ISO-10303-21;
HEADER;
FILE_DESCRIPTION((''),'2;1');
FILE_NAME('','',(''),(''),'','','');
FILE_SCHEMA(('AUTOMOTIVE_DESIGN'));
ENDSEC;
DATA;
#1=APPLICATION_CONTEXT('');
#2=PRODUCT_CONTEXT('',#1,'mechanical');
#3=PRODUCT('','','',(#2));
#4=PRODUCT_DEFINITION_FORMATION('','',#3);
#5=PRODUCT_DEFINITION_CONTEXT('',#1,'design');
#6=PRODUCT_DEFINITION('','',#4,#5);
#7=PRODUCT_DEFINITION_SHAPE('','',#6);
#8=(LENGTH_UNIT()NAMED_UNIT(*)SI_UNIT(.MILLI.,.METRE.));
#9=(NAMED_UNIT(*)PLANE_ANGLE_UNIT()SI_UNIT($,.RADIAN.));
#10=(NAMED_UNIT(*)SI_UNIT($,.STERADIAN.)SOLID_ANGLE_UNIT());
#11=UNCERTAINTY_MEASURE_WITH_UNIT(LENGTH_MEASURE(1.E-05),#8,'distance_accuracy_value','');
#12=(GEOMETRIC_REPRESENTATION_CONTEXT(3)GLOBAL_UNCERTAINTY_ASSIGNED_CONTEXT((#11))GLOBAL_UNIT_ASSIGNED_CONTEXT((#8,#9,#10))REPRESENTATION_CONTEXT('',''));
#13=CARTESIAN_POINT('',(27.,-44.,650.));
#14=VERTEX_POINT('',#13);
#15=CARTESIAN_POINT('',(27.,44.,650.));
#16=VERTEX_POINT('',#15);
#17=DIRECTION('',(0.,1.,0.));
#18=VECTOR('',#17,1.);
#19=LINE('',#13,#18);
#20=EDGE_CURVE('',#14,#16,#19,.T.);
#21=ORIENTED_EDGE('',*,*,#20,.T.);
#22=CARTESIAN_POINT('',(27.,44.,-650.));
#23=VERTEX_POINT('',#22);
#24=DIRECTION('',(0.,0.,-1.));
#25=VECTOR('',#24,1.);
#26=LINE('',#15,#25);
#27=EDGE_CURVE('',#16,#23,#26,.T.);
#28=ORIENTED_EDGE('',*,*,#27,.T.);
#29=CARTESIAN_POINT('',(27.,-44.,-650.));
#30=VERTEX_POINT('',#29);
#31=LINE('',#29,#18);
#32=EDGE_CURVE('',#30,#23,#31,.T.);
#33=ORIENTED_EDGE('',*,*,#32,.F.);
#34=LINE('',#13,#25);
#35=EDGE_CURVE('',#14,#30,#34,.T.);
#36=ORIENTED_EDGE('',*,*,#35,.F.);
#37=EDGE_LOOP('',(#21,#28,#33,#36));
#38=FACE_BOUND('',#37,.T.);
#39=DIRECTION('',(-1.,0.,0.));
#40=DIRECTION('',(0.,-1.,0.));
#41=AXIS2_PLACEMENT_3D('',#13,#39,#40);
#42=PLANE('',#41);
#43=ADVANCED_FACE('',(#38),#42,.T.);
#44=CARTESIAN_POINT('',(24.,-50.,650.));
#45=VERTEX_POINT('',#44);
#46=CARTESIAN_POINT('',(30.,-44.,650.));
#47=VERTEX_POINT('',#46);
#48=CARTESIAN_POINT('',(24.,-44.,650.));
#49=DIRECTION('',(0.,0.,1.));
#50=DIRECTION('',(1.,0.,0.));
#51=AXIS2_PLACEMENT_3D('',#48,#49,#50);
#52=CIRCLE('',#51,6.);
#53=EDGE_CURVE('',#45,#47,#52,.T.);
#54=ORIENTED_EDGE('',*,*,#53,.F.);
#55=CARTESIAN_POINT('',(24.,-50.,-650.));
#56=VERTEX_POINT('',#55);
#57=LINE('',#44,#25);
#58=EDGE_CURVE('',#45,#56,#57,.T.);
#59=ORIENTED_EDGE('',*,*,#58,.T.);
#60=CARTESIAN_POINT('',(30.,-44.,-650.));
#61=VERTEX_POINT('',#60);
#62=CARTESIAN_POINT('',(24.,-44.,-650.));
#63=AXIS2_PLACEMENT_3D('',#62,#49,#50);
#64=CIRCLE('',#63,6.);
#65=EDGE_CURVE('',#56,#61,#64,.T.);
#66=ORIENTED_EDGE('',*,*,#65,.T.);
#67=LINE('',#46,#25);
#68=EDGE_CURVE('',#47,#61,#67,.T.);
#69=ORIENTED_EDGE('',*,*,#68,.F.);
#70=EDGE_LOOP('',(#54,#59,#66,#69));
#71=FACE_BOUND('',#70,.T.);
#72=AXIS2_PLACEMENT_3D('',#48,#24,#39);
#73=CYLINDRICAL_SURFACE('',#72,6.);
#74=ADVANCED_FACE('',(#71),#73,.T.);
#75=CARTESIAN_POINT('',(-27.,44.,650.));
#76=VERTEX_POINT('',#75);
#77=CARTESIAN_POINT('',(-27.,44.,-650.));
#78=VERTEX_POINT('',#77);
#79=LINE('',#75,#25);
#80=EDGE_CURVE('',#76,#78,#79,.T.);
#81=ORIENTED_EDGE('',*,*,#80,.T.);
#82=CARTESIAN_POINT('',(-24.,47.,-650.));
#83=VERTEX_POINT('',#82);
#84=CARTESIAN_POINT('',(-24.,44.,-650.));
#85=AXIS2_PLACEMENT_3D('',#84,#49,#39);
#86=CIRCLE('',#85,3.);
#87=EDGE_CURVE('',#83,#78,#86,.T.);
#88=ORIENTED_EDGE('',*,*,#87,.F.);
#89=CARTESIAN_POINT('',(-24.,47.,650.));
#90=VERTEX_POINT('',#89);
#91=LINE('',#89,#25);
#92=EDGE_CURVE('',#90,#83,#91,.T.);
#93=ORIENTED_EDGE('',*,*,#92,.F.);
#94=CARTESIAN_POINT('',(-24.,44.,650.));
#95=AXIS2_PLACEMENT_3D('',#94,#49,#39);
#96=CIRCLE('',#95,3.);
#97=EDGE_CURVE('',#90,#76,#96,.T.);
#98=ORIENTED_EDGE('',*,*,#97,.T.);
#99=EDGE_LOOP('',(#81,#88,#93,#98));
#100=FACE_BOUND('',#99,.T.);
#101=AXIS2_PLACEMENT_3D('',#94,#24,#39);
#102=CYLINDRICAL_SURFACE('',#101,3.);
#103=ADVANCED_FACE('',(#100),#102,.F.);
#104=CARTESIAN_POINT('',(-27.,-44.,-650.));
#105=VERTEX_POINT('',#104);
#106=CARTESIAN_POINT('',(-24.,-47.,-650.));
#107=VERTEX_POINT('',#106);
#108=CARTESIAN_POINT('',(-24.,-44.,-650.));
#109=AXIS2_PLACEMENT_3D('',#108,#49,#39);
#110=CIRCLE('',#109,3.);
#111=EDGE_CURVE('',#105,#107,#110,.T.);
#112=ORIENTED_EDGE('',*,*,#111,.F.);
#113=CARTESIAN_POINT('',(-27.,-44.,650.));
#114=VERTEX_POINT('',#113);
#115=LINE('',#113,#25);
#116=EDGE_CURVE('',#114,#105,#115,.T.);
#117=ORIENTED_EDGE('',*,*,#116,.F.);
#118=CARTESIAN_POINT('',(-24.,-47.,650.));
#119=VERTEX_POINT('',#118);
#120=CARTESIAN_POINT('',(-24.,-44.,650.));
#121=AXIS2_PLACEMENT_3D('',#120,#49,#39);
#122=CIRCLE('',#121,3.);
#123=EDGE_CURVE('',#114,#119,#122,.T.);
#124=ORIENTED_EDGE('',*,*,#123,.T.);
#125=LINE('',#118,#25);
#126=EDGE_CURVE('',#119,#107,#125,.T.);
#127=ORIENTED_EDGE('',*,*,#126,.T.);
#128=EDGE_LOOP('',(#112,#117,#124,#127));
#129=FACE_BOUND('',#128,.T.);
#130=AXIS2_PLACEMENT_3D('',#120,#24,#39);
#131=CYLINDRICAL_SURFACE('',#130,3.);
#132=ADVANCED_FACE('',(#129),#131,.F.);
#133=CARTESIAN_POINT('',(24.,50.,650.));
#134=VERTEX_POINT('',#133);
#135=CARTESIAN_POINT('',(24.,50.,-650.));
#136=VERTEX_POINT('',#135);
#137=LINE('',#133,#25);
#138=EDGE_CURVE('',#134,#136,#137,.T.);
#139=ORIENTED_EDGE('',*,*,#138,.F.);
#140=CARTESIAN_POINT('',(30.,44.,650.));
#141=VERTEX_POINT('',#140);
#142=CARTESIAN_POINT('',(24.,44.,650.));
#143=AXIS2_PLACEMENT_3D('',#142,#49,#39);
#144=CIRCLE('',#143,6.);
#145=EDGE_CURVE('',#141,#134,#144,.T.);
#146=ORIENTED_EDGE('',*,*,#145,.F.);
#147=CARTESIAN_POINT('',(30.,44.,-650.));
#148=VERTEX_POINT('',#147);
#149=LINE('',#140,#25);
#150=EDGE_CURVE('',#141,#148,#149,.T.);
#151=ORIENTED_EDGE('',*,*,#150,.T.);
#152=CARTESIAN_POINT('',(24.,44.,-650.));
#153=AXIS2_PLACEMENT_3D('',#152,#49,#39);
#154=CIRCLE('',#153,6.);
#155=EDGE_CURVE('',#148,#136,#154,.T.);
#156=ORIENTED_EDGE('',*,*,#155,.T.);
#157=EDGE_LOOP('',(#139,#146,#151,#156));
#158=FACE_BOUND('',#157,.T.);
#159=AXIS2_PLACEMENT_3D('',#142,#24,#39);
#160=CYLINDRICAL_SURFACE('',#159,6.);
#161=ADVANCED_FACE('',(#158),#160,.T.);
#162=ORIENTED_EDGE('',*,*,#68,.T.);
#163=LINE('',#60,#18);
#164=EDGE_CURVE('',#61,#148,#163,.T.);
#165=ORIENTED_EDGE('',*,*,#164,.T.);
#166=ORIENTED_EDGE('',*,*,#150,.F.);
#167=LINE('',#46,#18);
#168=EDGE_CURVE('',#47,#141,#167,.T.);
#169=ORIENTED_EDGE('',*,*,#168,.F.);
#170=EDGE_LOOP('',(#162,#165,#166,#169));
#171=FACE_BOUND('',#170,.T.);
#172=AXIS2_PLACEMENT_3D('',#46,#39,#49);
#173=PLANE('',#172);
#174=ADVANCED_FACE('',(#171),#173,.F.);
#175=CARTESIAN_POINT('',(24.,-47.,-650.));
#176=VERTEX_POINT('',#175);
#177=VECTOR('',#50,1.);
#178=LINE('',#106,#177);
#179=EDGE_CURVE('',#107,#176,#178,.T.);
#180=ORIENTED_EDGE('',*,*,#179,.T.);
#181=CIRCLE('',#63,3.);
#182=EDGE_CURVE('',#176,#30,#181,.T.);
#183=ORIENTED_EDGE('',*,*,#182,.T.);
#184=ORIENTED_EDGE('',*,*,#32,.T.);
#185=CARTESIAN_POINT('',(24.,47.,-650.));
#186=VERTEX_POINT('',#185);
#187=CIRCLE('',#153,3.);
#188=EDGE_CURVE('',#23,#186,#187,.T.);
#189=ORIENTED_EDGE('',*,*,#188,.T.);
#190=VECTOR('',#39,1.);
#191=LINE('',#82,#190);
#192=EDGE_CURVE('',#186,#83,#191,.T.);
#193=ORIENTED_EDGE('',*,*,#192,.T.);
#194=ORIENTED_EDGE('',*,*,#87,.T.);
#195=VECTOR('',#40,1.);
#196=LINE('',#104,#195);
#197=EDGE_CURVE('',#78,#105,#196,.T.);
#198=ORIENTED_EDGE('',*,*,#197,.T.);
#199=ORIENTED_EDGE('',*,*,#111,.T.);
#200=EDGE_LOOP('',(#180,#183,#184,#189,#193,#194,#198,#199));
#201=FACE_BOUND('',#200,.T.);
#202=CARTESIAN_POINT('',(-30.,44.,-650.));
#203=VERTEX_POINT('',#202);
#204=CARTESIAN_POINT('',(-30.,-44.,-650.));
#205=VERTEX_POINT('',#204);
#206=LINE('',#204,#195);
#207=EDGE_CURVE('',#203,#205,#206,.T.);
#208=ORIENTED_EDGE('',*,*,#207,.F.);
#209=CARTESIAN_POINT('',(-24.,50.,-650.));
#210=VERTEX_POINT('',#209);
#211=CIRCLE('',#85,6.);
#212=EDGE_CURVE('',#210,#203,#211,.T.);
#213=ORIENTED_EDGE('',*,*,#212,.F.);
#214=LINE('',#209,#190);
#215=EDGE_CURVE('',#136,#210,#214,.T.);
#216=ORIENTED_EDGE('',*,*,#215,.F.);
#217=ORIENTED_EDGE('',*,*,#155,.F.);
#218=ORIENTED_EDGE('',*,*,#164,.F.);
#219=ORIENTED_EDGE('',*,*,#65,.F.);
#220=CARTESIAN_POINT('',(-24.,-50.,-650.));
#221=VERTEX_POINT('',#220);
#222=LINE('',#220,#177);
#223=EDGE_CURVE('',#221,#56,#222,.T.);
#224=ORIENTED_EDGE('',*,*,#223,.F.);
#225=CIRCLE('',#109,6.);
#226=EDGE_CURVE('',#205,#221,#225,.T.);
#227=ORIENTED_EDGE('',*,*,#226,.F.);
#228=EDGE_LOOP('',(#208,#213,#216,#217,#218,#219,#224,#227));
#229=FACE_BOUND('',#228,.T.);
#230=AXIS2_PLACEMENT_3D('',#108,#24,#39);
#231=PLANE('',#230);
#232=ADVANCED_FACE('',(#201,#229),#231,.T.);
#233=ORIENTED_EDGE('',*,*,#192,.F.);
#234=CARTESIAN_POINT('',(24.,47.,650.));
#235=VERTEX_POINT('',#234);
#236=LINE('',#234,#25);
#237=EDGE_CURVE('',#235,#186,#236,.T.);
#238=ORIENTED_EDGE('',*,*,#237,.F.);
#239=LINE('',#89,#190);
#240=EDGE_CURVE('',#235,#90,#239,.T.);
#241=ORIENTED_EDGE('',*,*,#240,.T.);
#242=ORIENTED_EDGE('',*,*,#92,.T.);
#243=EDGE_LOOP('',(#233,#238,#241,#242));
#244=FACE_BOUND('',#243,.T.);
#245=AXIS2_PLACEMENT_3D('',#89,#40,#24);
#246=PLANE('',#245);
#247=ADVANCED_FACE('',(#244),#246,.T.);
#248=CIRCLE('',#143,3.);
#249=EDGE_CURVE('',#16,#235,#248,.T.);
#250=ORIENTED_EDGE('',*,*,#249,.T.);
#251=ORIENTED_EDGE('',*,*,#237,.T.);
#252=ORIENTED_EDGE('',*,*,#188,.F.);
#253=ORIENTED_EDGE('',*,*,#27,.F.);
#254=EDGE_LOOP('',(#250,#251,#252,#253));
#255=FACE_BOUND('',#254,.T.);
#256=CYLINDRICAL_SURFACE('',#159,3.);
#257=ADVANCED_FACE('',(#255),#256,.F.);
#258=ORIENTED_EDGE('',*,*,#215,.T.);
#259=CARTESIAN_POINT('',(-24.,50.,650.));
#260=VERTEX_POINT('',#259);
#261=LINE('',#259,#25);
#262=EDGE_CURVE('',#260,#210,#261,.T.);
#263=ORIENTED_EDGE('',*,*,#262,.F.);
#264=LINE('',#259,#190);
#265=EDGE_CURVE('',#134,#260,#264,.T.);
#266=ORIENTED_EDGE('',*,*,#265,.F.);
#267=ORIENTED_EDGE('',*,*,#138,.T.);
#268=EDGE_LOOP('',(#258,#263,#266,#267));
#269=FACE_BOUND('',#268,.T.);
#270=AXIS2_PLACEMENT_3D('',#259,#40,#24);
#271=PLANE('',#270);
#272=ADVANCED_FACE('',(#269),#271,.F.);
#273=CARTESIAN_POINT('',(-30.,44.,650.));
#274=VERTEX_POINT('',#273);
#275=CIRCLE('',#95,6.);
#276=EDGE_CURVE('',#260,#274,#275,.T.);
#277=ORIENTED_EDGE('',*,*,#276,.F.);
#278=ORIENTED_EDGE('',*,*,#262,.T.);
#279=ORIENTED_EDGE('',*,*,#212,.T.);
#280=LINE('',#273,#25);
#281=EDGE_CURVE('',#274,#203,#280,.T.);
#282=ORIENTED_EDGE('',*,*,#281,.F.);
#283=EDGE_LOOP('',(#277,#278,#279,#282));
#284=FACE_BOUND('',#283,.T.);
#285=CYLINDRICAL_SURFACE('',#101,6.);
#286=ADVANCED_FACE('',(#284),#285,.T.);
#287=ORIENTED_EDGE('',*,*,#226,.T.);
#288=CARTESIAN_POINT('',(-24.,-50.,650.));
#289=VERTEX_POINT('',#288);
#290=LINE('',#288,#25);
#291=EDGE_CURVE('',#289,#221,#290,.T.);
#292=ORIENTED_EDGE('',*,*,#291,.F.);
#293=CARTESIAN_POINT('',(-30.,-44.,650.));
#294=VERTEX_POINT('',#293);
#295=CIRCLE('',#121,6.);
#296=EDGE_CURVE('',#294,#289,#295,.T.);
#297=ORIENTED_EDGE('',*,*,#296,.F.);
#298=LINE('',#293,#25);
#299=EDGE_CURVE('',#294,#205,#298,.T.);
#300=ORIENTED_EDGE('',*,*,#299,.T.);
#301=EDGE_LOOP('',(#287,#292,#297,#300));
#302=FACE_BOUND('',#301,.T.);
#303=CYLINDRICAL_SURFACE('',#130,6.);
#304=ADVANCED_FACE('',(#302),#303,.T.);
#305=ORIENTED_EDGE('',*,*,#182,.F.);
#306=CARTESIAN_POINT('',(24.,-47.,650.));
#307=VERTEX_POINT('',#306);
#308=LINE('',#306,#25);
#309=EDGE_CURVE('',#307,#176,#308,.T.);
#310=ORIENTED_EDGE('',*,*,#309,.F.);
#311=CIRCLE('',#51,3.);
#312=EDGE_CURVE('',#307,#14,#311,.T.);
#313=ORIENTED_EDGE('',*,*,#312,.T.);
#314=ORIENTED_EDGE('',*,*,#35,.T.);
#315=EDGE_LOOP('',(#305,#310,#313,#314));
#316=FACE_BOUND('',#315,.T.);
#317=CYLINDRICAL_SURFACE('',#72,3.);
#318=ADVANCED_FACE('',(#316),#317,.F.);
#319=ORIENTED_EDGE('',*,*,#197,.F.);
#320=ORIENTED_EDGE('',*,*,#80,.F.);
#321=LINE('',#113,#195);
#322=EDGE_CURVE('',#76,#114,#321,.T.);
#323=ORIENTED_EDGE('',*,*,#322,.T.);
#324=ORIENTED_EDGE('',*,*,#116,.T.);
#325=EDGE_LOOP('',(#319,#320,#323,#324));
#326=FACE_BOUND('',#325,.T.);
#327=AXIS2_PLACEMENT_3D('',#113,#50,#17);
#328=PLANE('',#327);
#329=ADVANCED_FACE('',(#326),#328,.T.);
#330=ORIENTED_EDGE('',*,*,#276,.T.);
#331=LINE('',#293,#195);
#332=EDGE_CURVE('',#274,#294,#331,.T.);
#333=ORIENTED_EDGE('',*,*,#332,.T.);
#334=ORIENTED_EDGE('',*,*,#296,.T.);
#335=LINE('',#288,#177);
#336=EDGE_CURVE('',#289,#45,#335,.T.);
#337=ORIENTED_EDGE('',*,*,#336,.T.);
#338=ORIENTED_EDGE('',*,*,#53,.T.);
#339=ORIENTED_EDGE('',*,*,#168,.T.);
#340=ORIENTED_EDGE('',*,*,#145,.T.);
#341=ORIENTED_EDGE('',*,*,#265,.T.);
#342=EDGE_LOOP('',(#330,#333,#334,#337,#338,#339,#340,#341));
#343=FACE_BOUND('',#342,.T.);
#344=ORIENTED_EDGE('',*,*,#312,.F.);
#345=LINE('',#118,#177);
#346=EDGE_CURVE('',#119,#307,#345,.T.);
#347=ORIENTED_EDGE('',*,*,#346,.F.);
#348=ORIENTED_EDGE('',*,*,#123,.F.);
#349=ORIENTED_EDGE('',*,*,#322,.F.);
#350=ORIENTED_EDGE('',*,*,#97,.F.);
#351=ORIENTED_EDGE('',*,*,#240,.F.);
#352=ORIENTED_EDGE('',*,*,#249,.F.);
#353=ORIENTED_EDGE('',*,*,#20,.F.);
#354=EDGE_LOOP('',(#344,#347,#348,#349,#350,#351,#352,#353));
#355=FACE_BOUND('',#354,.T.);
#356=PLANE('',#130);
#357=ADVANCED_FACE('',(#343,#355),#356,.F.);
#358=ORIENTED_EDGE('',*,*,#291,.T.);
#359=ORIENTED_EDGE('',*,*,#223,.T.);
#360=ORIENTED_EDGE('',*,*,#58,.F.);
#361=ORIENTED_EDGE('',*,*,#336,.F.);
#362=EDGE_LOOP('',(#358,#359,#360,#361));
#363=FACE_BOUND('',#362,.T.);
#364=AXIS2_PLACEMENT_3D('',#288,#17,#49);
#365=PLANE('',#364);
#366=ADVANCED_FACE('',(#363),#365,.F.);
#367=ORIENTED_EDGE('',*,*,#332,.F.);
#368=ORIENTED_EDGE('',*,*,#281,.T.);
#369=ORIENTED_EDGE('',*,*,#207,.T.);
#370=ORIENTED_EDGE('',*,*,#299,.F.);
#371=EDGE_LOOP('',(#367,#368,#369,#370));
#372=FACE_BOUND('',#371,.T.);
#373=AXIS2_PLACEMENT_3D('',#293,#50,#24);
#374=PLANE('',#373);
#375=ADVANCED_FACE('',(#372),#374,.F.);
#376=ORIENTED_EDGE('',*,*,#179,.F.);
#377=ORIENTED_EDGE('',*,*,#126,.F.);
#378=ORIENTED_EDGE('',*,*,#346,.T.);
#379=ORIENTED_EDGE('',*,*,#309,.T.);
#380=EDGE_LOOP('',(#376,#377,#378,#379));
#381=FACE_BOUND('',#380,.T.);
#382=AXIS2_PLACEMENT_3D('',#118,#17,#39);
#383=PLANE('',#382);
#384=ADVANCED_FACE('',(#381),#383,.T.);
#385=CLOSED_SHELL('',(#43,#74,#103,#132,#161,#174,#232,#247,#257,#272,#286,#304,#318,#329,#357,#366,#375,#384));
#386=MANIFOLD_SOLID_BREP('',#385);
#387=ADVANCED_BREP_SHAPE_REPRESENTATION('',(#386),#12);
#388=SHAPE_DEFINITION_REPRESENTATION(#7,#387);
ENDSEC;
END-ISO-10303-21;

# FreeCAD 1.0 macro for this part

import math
import FreeCAD as App
import Part
import Sketcher
Q = App.Units.Quantity

doc = App.newDocument("Part")
body = doc.addObject("PartDesign::Body", "Body")

# Sketch on XY plane
sketch1 = doc.addObject("Sketcher::SketchObject", "Sketch")
body.addObject(sketch1)
sketch1.AttachmentSupport = (doc.XY_Plane, [""])
sketch1.MapMode = "FlatFace"
sketch1.addGeometry([
    Part.LineSegment(App.Vector(-24, -50, 0), App.Vector(24, -50, 0)),  # 0
    Part.ArcOfCircle(Part.Circle(App.Vector(24, -44, 0), App.Vector(0, 0, 1), 6), math.radians(-90), math.radians(0)),  # 1
    Part.LineSegment(App.Vector(30, -44, 0), App.Vector(30, 44, 0)),  # 2
    Part.ArcOfCircle(Part.Circle(App.Vector(24, 44, 0), App.Vector(0, 0, 1), 6), math.radians(0), math.radians(90)),  # 3
    Part.LineSegment(App.Vector(24, 50, 0), App.Vector(-24, 50, 0)),  # 4
    Part.ArcOfCircle(Part.Circle(App.Vector(-24, 44, 0), App.Vector(0, 0, 1), 6), math.radians(90), math.radians(180)),  # 5
    Part.LineSegment(App.Vector(-30, 44, 0), App.Vector(-30, -44, 0)),  # 6
    Part.ArcOfCircle(Part.Circle(App.Vector(-24, -44, 0), App.Vector(0, 0, 1), 6), math.radians(180), math.radians(270)),  # 7
    Part.ArcOfCircle(Part.Circle(App.Vector(-24, 44, 0), App.Vector(0, 0, 1), 3), math.radians(90), math.radians(180)),  # 8
    Part.LineSegment(App.Vector(-24, 47, 0), App.Vector(24, 47, 0)),  # 9
    Part.ArcOfCircle(Part.Circle(App.Vector(24, 44, 0), App.Vector(0, 0, 1), 3), math.radians(0), math.radians(90)),  # 10
    Part.LineSegment(App.Vector(27, 44, 0), App.Vector(27, -44, 0)),  # 11
    Part.ArcOfCircle(Part.Circle(App.Vector(24, -44, 0), App.Vector(0, 0, 1), 3), math.radians(-90), math.radians(0)),  # 12
    Part.LineSegment(App.Vector(24, -47, 0), App.Vector(-24, -47, 0)),  # 13
    Part.ArcOfCircle(Part.Circle(App.Vector(-24, -44, 0), App.Vector(0, 0, 1), 3), math.radians(180), math.radians(270)),  # 14
    Part.LineSegment(App.Vector(-27, -44, 0), App.Vector(-27, 44, 0)),  # 15
], False)
sketch1.addConstraint([
    Sketcher.Constraint("Tangent", 0, 2, 1, 1),
    Sketcher.Constraint("Tangent", 1, 2, 2, 1),
    Sketcher.Constraint("Tangent", 2, 2, 3, 1),
    Sketcher.Constraint("Tangent", 3, 2, 4, 1),
    Sketcher.Constraint("Tangent", 4, 2, 5, 1),
    Sketcher.Constraint("Tangent", 5, 2, 6, 1),
    Sketcher.Constraint("Tangent", 6, 2, 7, 1),
    Sketcher.Constraint("Tangent", 7, 2, 0, 1),
    Sketcher.Constraint("Tangent", 8, 1, 9, 1),
    Sketcher.Constraint("Tangent", 9, 2, 10, 2),
    Sketcher.Constraint("Tangent", 10, 1, 11, 1),
    Sketcher.Constraint("Tangent", 11, 2, 12, 2),
    Sketcher.Constraint("Tangent", 12, 1, 13, 1),
    Sketcher.Constraint("Tangent", 13, 2, 14, 2),
    Sketcher.Constraint("Tangent", 14, 1, 15, 1),
    Sketcher.Constraint("Tangent", 15, 2, 8, 2),
    Sketcher.Constraint("Horizontal", 0),
    Sketcher.Constraint("Vertical", 2),
    Sketcher.Constraint("Horizontal", 4),
    Sketcher.Constraint("Vertical", 6),
    Sketcher.Constraint("Horizontal", 9),
    Sketcher.Constraint("Vertical", 11),
    Sketcher.Constraint("Horizontal", 13),
    Sketcher.Constraint("Vertical", 15),
    Sketcher.Constraint("Coincident", 8, 3, 5, 3),
    Sketcher.Constraint("Coincident", 10, 3, 3, 3),
    Sketcher.Constraint("Coincident", 12, 3, 1, 3),
    Sketcher.Constraint("Equal", 1, 3),
    Sketcher.Constraint("Equal", 3, 5),
    Sketcher.Constraint("Equal", 5, 7),
    Sketcher.Constraint("Equal", 12, 14),
    Sketcher.Constraint("Symmetric", 1, 3, 5, 3, -1, 1),
    Sketcher.Constraint("Radius", 1, Q("6 mm")),
    Sketcher.Constraint("Radius", 8, Q("3 mm")),
    Sketcher.Constraint("DistanceX", 0, 1, 0, 2, Q("48 mm")),
    Sketcher.Constraint("DistanceY", 2, 1, 2, 2, Q("88 mm")),
])
pad1 = doc.addObject("PartDesign::Pad", "Pad")
body.addObject(pad1)
pad1.Profile = sketch1
pad1.Length = 1300
pad1.Midplane = True

doc.recompute()
